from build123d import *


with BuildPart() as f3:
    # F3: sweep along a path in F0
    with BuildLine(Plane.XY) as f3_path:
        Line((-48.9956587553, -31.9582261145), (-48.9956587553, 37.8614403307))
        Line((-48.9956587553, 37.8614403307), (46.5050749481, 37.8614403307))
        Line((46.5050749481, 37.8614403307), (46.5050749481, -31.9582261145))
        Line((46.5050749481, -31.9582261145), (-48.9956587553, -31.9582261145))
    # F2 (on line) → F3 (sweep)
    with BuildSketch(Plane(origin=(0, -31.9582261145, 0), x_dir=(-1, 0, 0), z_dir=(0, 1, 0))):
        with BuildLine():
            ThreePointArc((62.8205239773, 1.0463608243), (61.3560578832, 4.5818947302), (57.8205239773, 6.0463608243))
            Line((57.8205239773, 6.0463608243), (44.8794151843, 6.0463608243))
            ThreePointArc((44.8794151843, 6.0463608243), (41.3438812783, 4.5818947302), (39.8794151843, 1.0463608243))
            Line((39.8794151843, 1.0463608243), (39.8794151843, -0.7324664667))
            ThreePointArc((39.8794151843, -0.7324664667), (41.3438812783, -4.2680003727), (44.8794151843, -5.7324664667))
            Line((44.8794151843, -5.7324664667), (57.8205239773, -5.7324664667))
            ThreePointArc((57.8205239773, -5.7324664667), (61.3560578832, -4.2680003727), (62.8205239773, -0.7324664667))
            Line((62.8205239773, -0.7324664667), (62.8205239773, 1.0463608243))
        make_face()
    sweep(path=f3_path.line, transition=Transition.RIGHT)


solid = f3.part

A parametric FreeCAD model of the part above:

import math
import FreeCAD as App
import Part
import Sketcher
Q = App.Units.Quantity

doc = App.newDocument("Part")
body = doc.addObject("PartDesign::Body", "Body")

# Sketch on XZ plane
sketch1 = body.newObject("Sketcher::SketchObject", "Sketch")
sketch1.AttachmentSupport = (doc.getObject("XZ_Plane"), [""])
sketch1.MapMode = "FlatFace"
sketch1.AttachmentOffset = App.Placement(App.Vector(0, 0, 31.958226), App.Rotation())
sketch1.addGeometry([
    Part.ArcOfCircle(Part.Circle(App.Vector(-57.8, 1, 0), App.Vector(0, 0, 1), 5), math.radians(90), math.radians(180)),  # 0
    Part.LineSegment(App.Vector(-57.8, 6, 0), App.Vector(-44.9, 6, 0)),  # 1
    Part.ArcOfCircle(Part.Circle(App.Vector(-44.9, 1, 0), App.Vector(0, 0, 1), 5), math.radians(0), math.radians(90)),  # 2
    Part.LineSegment(App.Vector(-39.9, 1, 0), App.Vector(-39.9, -0.7, 0)),  # 3
    Part.ArcOfCircle(Part.Circle(App.Vector(-44.9, -0.7, 0), App.Vector(0, 0, 1), 5), math.radians(-90), math.radians(0)),  # 4
    Part.LineSegment(App.Vector(-44.9, -5.7, 0), App.Vector(-57.8, -5.7, 0)),  # 5
    Part.ArcOfCircle(Part.Circle(App.Vector(-57.8, -0.7, 0), App.Vector(0, 0, 1), 5), math.radians(180), math.radians(270)),  # 6
    Part.LineSegment(App.Vector(-62.8, -0.7, 0), App.Vector(-62.8, 1, 0)),  # 7
], False)
sketch1.addConstraint([
    Sketcher.Constraint("Tangent", 0, 1, 1, 1),
    Sketcher.Constraint("Tangent", 1, 2, 2, 2),
    Sketcher.Constraint("Tangent", 2, 1, 3, 1),
    Sketcher.Constraint("Tangent", 3, 2, 4, 2),
    Sketcher.Constraint("Tangent", 4, 1, 5, 1),
    Sketcher.Constraint("Tangent", 5, 2, 6, 2),
    Sketcher.Constraint("Tangent", 6, 1, 7, 1),
    Sketcher.Constraint("Tangent", 7, 2, 0, 2),
    Sketcher.Constraint("Horizontal", 1),
    Sketcher.Constraint("Vertical", 3),
    Sketcher.Constraint("Horizontal", 5),
    Sketcher.Constraint("Vertical", 7),
    Sketcher.Constraint("Equal", 0, 2),
    Sketcher.Constraint("Equal", 2, 4),
    Sketcher.Constraint("Equal", 4, 6),
    Sketcher.Constraint("Radius", 0, Q("5 mm")),
    Sketcher.Constraint("DistanceX", 1, 1, 1, 2, Q("12.941109 mm")),
    Sketcher.Constraint("DistanceY", 3, 2, 3, 1, Q("1.778827 mm")),
    Sketcher.Constraint("DistanceY", -1, 1, 0, 3, Q("1.046361 mm")),
    Sketcher.Constraint("DistanceX", 0, 3, -1, 1, Q("57.820524 mm")),
])

# Sketch on XY plane
sketch2 = body.newObject("Sketcher::SketchObject", "Sketch001")
sketch2.AttachmentSupport = (doc.getObject("XY_Plane"), [""])
sketch2.MapMode = "FlatFace"
sketch2.addGeometry([
    Part.LineSegment(App.Vector(-49, -32, 0), App.Vector(-49, 38, 0)),
    Part.LineSegment(App.Vector(-49, 38, 0), App.Vector(47, 38, 0)),
    Part.LineSegment(App.Vector(47, 38, 0), App.Vector(47, -32, 0)),
    Part.LineSegment(App.Vector(47, -32, 0), App.Vector(-49, -32, 0)),
], False)
sketch2.addConstraint([
    Sketcher.Constraint("Coincident", 0, 2, 1, 1),
    Sketcher.Constraint("Coincident", 1, 2, 2, 1),
    Sketcher.Constraint("Coincident", 2, 2, 3, 1),
    Sketcher.Constraint("Coincident", 3, 2, 0, 1),
    Sketcher.Constraint("Vertical", 0),
    Sketcher.Constraint("Horizontal", 1),
    Sketcher.Constraint("Vertical", 2),
    Sketcher.Constraint("Horizontal", 3),
    Sketcher.Constraint("DistanceX", 1, 1, 1, 2, Q("95.500734 mm")),
    Sketcher.Constraint("DistanceY", 0, 1, 0, 2, Q("69.819666 mm")),
    Sketcher.Constraint("DistanceX", 0, 2, -1, 1, Q("48.995659 mm")),
    Sketcher.Constraint("DistanceY", -1, 1, 0, 2, Q("37.86144 mm")),
])
doc.recompute()

additivepipe = body.newObject("PartDesign::AdditivePipe", "AdditivePipe")
additivepipe.Profile = sketch1
additivepipe.Spine = (sketch2, ["Edge1", "Edge2", "Edge3", "Edge4"])
additivepipe.Transition = "Right corner"

doc.recompute()
